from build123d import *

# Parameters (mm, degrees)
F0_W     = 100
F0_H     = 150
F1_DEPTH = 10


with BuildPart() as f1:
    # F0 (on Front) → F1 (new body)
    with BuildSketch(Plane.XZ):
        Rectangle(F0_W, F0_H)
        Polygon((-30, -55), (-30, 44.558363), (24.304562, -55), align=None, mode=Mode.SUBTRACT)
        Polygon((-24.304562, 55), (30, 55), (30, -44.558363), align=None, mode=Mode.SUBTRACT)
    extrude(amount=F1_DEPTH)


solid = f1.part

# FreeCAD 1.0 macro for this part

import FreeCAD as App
import Part
import Sketcher

V = App.Vector


def add_polygon(sketch, points):
    """Adds a closed chain of lines whose ends are joined by coincident constraints."""
    first, n = sketch.GeometryCount, len(points)
    for a, b in zip(points, points[1:] + points[:1]):
        sketch.addGeometry(Part.LineSegment(App.Vector(*a, 0), App.Vector(*b, 0)), False)
    for i in range(n):
        sketch.addConstraint(Sketcher.Constraint("Coincident", first + i, 2, first + (i + 1) % n, 1))

doc = App.newDocument("Part")
body = doc.addObject("PartDesign::Body", "Body")

# Sketch on XZ plane
sketch1 = doc.addObject("Sketcher::SketchObject", "Sketch")
body.addObject(sketch1)
sketch1.AttachmentSupport = (doc.XZ_Plane, [""])
sketch1.MapMode = "FlatFace"
add_polygon(sketch1, [(-50, 75), (-50, -75), (50, -75), (50, 75)])  # lines 0-3
add_polygon(sketch1, [(24, -55), (-30, -55), (-30, 45)])  # lines 4-6
add_polygon(sketch1, [(30, -45), (-24, 55), (30, 55)])  # lines 7-9
sketch1.addConstraint([
    Sketcher.Constraint("Vertical", 0),
    Sketcher.Constraint("Horizontal", 1),
    Sketcher.Constraint("Vertical", 2),
    Sketcher.Constraint("Horizontal", 3),
    Sketcher.Constraint("Horizontal", 4),
    Sketcher.Constraint("Vertical", 5),
    Sketcher.Constraint("Horizontal", 8),
    Sketcher.Constraint("Vertical", 9),
    Sketcher.Constraint("Symmetric", 0, 2, 2, 2, -1, 1),
    Sketcher.Constraint("Symmetric", 6, 2, 7, 2, -1, 1),
    Sketcher.Constraint("Symmetric", 5, 2, 9, 2, -1, 1),
    Sketcher.Constraint("DistanceX", 1, 1, 1, 2, 100.0),
    Sketcher.Constraint("DistanceY", 0, 2, 0, 1, 150.0),
    Sketcher.Constraint("DistanceX", 4, 2, -1, 1, 30.0),
    Sketcher.Constraint("DistanceY", 4, 2, -1, 1, 55.0),
    Sketcher.Constraint("Distance", 6, 113.405701),
    Sketcher.Constraint("DistanceX", 4, 2, 4, 1, 54.304562),
])
pad1 = doc.addObject("PartDesign::Pad", "Pad")
body.addObject(pad1)
pad1.Profile = sketch1
pad1.Length = 10

doc.recompute()
